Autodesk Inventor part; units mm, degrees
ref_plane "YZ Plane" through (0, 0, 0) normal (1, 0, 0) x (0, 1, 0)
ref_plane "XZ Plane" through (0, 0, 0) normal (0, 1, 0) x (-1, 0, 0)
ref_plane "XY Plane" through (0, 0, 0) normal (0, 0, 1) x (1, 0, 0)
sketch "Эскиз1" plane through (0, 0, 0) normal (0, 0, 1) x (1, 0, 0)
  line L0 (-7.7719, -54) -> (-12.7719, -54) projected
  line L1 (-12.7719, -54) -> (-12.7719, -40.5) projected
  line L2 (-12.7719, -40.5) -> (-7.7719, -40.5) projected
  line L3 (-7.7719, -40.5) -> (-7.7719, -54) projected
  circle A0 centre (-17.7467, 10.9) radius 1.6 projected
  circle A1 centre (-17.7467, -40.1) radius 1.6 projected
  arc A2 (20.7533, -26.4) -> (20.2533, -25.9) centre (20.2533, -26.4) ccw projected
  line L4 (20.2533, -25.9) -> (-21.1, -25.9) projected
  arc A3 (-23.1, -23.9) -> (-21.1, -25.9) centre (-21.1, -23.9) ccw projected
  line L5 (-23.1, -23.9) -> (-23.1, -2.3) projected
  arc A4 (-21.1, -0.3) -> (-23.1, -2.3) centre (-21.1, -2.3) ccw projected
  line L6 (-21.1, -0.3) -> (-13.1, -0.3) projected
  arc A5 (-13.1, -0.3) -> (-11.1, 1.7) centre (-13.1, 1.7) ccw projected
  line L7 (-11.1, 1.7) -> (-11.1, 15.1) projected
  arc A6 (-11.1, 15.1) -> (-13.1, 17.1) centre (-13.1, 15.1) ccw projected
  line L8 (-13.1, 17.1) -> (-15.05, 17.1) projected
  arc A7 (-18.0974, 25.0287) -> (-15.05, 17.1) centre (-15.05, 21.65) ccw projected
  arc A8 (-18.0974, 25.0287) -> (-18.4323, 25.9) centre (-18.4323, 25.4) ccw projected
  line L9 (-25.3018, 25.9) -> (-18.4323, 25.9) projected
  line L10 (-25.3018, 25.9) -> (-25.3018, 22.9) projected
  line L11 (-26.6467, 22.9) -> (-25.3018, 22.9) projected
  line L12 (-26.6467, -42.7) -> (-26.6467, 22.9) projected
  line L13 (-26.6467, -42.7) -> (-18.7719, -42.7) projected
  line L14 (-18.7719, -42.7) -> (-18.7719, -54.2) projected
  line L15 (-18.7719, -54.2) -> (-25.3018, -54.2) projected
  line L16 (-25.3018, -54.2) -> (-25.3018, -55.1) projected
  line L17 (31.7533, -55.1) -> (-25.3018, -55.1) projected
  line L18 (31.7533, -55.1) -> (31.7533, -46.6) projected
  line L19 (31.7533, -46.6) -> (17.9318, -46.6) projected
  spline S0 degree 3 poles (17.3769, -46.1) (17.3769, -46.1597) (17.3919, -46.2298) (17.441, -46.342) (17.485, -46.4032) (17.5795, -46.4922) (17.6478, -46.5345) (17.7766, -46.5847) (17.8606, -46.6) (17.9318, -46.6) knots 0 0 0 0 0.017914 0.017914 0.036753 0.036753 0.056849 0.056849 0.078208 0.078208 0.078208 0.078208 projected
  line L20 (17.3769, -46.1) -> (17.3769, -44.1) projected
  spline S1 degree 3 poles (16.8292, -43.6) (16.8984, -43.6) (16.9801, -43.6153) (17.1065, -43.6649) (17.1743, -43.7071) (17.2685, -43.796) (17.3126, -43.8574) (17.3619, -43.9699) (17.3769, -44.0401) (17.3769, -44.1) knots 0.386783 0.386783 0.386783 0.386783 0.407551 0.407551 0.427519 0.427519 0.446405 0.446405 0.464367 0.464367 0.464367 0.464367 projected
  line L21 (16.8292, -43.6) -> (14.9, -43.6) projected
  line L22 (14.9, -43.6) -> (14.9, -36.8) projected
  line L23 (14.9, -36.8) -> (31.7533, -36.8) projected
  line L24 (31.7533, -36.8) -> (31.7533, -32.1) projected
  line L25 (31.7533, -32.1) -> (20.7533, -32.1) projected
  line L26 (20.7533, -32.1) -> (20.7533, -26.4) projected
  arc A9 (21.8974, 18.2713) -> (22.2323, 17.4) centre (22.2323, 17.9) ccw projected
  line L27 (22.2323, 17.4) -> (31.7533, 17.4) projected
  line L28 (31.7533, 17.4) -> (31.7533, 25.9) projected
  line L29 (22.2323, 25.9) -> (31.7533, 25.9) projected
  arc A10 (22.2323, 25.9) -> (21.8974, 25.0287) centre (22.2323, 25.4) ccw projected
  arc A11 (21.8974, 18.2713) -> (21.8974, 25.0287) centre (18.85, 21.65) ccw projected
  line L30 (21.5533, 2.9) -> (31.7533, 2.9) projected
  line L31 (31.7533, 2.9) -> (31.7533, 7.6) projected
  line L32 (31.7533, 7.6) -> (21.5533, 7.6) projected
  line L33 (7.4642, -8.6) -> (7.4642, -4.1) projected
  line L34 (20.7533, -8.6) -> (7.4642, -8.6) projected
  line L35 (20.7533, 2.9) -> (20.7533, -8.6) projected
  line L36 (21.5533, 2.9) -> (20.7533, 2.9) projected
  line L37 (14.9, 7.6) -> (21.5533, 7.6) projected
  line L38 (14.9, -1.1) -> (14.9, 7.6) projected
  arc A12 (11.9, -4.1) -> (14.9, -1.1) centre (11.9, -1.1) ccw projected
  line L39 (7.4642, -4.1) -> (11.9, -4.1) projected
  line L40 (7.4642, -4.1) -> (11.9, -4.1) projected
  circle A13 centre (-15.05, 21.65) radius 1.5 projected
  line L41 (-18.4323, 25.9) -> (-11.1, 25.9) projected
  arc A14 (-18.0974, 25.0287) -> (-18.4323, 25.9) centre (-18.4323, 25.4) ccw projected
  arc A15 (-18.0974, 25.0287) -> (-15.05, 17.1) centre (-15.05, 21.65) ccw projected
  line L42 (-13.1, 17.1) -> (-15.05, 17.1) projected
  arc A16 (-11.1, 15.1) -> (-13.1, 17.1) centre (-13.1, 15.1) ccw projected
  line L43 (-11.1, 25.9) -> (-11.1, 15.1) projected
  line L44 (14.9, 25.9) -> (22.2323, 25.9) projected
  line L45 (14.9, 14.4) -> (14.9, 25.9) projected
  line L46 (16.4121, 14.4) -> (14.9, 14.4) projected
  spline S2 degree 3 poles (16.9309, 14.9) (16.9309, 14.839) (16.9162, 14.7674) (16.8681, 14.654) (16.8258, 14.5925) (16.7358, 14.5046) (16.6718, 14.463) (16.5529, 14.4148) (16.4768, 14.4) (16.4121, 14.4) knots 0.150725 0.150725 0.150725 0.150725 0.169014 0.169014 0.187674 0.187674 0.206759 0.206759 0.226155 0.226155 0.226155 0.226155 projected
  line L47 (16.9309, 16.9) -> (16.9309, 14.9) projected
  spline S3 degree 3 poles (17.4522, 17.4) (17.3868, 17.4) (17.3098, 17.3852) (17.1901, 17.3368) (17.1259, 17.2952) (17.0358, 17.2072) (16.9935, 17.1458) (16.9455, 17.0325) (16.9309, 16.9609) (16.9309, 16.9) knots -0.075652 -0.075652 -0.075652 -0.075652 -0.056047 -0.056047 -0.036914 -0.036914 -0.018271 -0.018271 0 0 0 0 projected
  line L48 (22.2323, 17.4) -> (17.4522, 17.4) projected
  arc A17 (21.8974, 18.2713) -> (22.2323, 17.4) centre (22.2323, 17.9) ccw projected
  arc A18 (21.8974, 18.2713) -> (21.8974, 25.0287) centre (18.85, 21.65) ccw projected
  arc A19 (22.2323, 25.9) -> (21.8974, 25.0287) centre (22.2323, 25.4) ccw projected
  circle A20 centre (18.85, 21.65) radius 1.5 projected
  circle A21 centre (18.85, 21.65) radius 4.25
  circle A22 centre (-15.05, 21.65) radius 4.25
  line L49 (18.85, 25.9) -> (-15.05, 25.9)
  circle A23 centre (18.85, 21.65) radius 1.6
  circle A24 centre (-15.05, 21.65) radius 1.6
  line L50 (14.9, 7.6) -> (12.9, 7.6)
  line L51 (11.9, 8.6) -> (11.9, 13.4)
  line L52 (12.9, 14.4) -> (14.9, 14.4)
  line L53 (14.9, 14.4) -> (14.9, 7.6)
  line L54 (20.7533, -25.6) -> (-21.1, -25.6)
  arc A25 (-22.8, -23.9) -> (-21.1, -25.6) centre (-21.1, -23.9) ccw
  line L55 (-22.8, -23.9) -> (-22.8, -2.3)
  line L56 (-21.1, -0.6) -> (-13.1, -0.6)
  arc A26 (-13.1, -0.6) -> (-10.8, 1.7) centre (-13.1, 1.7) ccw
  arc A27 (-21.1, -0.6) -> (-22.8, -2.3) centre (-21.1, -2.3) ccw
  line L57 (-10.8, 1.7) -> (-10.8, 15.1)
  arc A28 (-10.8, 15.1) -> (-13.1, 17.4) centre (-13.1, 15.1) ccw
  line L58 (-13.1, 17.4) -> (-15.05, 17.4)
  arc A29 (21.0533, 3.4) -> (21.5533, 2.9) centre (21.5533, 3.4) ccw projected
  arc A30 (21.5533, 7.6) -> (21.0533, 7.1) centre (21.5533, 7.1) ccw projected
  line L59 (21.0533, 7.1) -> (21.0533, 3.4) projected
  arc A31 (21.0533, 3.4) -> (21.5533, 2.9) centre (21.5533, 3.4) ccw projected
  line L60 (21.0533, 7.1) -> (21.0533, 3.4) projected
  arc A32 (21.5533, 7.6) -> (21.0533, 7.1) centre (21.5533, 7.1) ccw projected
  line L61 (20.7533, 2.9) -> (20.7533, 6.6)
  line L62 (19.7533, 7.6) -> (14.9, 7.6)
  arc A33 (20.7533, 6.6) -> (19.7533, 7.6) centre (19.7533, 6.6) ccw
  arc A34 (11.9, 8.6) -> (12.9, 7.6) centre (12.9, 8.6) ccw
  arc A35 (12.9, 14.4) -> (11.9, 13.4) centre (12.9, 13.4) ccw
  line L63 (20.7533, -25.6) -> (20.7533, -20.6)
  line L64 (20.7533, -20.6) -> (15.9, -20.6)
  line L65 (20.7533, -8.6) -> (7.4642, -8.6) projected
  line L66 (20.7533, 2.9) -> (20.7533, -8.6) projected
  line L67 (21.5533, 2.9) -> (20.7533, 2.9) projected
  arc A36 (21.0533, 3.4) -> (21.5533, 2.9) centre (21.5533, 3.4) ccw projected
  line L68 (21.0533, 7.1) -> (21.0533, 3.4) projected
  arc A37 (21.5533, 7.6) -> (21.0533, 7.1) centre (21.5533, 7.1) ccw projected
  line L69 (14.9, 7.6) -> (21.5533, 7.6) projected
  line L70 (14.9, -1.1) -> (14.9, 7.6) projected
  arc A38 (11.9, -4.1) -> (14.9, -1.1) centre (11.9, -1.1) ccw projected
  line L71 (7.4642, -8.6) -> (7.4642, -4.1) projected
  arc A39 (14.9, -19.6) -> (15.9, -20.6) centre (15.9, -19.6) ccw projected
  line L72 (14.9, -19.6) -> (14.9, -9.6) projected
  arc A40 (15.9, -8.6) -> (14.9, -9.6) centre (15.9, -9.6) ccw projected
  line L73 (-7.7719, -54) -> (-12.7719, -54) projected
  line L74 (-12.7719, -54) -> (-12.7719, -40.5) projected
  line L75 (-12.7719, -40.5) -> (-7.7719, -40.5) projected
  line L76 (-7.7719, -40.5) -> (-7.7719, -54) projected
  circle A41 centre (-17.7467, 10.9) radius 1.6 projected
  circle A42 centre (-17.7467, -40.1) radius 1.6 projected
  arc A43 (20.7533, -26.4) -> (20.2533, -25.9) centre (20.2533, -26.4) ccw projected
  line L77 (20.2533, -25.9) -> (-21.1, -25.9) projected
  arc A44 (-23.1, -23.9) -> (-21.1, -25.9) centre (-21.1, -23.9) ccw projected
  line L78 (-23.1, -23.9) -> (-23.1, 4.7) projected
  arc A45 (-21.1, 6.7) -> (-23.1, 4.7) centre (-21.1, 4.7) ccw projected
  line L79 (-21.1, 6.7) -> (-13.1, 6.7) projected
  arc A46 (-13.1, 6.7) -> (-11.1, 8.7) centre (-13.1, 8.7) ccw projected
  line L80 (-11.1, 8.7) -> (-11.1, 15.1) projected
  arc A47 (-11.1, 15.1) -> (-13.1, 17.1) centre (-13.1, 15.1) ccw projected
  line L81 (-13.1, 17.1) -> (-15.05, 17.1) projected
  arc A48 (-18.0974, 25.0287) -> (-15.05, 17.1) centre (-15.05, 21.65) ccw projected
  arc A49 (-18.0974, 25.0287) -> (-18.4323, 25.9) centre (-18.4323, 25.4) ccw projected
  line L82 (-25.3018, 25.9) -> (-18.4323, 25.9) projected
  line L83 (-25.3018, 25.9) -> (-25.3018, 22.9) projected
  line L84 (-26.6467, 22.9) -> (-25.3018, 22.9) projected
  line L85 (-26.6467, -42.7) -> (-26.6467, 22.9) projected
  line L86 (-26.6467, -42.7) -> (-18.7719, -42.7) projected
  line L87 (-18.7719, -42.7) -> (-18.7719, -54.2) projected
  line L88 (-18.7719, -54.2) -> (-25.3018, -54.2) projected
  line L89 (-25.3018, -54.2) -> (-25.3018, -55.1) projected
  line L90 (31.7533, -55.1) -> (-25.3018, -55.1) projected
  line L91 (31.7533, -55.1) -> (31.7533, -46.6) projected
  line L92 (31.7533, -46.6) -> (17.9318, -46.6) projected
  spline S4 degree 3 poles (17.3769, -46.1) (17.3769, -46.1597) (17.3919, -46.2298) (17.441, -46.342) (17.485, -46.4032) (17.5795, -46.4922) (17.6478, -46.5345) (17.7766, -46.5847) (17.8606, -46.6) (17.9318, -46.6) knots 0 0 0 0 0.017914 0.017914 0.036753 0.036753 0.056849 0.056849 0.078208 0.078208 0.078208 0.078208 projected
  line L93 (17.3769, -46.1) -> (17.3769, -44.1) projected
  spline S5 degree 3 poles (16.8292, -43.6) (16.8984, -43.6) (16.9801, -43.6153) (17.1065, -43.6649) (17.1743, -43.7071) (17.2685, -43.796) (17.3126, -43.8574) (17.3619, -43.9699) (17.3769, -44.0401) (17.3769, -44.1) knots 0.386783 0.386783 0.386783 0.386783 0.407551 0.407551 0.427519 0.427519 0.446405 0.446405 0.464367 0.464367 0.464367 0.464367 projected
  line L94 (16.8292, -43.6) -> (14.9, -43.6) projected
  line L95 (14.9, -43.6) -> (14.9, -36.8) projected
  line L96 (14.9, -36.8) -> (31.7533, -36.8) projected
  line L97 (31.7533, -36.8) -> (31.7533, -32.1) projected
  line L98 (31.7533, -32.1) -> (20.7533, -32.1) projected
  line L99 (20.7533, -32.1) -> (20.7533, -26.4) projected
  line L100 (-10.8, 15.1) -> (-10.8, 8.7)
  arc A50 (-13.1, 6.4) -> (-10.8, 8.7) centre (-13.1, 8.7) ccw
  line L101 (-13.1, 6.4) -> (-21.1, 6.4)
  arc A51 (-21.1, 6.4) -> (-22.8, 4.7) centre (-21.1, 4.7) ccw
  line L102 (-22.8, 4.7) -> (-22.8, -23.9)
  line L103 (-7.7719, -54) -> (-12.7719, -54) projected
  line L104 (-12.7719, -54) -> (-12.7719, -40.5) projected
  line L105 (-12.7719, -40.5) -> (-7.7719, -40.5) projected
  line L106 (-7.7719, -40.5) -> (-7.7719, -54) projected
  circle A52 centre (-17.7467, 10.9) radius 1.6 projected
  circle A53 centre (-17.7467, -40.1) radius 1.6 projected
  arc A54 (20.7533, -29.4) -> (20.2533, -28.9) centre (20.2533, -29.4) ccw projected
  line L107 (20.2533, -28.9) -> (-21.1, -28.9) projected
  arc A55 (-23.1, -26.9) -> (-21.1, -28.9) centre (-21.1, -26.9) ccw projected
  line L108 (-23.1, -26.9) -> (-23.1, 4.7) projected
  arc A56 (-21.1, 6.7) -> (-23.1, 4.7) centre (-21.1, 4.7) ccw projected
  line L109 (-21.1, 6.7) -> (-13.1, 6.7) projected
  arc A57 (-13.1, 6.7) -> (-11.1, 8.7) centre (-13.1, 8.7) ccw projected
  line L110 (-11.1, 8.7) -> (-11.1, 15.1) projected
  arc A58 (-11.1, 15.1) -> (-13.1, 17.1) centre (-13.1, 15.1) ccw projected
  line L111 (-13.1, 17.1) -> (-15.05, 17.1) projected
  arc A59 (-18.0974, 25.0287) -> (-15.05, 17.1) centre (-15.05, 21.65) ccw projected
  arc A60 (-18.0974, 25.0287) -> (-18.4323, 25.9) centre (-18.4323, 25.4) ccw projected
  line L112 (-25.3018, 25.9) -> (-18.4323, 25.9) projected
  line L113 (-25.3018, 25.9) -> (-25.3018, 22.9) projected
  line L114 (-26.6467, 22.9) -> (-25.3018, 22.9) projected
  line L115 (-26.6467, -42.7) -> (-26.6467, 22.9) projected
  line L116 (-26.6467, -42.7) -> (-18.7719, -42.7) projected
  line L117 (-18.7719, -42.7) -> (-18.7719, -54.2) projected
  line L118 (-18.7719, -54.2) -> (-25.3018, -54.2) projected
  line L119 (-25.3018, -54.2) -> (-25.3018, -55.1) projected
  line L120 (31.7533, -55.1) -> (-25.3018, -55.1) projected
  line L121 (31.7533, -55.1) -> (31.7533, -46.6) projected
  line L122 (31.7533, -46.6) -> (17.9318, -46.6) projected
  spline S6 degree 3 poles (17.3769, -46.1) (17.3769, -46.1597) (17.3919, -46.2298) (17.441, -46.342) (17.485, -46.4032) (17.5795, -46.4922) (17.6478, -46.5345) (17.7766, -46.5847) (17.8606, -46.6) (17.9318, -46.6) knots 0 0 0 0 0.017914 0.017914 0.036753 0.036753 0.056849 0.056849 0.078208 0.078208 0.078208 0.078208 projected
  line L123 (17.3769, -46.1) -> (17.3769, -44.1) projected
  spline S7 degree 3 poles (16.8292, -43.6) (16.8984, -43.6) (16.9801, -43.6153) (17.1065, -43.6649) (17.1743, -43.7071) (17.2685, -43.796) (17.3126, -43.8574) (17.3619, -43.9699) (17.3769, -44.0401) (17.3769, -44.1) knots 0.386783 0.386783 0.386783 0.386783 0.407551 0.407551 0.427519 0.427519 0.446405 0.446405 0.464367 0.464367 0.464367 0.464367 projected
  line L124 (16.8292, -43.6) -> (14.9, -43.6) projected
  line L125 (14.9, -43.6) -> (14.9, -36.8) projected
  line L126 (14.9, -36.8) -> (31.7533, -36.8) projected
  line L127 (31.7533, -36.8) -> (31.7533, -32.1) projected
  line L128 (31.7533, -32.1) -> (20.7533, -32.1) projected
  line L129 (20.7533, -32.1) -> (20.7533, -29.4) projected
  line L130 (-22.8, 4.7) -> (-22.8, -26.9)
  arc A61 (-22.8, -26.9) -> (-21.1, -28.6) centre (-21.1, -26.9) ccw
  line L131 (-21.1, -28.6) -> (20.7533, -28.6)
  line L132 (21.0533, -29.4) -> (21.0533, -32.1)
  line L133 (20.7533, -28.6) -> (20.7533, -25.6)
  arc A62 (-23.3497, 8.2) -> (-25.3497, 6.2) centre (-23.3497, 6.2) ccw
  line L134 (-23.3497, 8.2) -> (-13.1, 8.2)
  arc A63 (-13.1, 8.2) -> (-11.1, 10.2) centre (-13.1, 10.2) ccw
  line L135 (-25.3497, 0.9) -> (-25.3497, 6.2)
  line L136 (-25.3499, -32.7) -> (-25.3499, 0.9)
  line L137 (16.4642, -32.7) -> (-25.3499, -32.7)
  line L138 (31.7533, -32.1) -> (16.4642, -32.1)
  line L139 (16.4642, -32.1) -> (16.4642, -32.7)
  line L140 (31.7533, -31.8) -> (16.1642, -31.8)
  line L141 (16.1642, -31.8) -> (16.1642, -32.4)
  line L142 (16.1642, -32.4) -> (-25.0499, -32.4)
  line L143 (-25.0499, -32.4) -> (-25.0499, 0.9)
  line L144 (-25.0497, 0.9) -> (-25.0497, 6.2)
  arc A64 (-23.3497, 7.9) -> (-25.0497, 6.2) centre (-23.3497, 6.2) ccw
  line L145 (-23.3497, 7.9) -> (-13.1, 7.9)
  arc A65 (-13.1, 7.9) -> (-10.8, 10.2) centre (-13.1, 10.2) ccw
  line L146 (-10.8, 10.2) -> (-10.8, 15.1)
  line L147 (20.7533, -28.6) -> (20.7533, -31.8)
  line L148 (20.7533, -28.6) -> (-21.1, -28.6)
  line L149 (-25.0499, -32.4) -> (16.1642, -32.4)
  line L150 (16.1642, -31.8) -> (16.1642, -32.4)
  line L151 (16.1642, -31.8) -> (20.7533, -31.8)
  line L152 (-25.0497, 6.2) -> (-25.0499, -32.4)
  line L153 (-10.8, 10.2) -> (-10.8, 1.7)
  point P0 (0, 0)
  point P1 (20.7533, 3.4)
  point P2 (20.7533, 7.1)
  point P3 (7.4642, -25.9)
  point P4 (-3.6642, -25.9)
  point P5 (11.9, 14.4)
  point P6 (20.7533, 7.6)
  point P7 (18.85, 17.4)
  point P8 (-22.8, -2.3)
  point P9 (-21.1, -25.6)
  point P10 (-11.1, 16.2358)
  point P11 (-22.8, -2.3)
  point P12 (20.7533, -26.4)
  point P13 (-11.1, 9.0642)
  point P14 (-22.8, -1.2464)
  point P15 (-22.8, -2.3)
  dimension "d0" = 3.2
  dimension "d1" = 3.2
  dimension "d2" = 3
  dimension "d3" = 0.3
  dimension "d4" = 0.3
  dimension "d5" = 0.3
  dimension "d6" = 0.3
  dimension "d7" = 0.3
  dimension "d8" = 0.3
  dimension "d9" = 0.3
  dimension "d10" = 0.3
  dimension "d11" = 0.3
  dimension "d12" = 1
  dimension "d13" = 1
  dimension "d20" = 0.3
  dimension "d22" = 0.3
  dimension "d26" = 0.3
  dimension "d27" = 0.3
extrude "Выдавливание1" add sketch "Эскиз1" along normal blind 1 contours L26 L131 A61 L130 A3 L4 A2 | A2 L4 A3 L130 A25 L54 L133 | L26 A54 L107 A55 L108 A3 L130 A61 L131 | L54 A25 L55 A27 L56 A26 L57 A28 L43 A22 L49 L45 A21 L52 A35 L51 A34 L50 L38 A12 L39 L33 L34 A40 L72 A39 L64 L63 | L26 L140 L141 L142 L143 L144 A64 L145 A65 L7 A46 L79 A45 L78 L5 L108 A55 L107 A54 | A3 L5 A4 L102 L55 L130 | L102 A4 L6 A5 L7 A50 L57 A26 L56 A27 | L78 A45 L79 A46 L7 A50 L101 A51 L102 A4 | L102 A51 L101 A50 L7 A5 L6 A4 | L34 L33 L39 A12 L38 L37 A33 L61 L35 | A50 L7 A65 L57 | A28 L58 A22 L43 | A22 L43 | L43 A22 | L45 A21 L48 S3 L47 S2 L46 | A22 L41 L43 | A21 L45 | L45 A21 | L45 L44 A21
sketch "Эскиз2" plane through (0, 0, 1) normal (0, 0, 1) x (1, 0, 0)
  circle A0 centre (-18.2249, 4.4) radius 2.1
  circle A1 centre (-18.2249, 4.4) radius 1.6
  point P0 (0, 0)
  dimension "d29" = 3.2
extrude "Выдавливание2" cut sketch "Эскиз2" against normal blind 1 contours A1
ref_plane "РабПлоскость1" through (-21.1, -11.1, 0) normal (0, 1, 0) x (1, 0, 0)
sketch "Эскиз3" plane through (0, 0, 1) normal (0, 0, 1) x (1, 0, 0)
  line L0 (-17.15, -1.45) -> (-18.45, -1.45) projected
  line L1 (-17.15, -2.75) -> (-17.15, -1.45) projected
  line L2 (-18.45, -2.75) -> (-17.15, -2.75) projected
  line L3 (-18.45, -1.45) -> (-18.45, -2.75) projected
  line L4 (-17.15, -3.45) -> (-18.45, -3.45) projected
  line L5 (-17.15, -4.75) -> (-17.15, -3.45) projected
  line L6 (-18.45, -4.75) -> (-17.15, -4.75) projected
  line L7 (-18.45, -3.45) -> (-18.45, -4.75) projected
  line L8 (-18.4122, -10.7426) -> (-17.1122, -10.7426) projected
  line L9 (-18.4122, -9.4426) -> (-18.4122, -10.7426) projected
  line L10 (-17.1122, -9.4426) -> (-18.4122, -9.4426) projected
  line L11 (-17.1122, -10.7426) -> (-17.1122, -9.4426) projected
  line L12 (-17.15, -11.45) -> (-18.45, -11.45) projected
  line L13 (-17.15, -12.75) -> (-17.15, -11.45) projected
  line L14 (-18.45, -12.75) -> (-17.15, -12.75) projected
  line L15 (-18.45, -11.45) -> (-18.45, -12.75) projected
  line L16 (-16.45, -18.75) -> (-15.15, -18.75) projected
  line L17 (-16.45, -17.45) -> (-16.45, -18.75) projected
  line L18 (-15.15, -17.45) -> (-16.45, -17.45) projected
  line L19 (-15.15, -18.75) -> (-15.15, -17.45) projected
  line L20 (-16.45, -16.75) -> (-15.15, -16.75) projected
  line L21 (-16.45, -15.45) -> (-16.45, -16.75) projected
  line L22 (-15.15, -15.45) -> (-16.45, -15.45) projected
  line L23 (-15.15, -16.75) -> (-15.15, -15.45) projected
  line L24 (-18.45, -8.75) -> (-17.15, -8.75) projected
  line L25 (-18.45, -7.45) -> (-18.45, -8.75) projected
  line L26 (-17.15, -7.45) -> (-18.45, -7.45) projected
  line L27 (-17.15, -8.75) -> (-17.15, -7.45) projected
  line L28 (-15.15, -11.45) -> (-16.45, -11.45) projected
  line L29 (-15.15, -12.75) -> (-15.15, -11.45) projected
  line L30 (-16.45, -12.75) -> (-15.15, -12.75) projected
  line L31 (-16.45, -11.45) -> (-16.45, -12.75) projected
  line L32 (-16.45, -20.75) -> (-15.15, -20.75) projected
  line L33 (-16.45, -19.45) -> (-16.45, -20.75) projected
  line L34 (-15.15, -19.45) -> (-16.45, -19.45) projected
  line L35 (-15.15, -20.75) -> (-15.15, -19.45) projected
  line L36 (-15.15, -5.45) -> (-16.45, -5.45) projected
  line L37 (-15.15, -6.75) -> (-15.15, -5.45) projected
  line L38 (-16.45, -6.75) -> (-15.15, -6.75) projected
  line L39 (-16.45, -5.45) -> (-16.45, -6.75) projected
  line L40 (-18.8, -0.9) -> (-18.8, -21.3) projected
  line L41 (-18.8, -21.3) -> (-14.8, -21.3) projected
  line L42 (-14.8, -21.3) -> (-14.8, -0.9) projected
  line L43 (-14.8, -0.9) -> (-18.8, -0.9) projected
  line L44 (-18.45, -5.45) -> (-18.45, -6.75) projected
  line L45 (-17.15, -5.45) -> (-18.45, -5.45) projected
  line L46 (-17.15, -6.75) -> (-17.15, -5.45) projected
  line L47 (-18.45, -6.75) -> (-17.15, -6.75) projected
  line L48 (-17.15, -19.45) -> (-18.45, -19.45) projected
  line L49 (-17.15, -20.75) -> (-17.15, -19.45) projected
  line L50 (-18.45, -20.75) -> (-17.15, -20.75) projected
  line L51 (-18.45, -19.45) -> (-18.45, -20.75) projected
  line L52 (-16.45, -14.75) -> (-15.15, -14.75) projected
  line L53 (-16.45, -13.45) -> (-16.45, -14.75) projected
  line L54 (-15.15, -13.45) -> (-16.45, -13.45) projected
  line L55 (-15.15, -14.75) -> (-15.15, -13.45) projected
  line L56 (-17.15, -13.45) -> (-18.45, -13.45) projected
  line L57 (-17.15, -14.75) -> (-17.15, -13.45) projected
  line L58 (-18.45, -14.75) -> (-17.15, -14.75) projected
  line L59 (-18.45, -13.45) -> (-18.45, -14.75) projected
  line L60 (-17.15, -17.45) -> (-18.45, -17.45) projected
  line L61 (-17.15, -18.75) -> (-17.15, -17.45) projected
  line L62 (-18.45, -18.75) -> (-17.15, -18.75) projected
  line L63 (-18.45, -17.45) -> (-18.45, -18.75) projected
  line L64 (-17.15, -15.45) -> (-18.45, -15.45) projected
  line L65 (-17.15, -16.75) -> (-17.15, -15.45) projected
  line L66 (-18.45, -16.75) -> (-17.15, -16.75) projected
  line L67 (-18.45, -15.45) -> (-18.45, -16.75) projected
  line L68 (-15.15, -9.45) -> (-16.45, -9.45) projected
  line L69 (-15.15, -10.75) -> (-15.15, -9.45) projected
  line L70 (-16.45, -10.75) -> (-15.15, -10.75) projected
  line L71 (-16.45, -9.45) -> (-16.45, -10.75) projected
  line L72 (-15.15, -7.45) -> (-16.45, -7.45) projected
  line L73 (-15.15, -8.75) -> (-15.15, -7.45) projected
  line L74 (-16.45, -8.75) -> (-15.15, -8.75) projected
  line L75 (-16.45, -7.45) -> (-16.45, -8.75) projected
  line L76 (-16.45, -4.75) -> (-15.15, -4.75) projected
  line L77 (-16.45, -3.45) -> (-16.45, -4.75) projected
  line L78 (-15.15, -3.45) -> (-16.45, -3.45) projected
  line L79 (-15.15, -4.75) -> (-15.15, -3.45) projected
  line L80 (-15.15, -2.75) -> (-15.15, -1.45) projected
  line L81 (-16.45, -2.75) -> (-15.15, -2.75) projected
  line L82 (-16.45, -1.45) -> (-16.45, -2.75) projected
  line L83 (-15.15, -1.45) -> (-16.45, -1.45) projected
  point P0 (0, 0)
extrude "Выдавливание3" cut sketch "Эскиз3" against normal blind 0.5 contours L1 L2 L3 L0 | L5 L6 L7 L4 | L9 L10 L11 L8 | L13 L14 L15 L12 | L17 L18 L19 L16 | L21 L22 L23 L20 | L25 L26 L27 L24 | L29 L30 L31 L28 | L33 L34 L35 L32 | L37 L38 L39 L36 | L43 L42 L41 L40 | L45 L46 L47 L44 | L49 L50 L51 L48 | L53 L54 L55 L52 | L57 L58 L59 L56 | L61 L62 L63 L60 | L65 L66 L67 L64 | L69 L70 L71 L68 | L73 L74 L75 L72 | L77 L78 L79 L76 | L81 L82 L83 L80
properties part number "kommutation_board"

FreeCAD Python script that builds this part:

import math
import FreeCAD as App
import Part
import Sketcher

V = App.Vector


def add_polygon(sketch, points):
    """Adds a closed chain of lines whose ends are joined by coincident constraints."""
    first, n = sketch.GeometryCount, len(points)
    for a, b in zip(points, points[1:] + points[:1]):
        sketch.addGeometry(Part.LineSegment(App.Vector(*a, 0), App.Vector(*b, 0)), False)
    for i in range(n):
        sketch.addConstraint(Sketcher.Constraint("Coincident", first + i, 2, first + (i + 1) % n, 1))

doc = App.newDocument("Part")
body = doc.addObject("PartDesign::Body", "Body")

sketch1 = doc.addObject("Sketcher::SketchObject", "Sketch")
body.addObject(sketch1)
sketch1.AttachmentSupport = (doc.XY_Plane, [""])
sketch1.MapMode = "FlatFace"
sketch1.addGeometry(Part.LineSegment(V(20.7533, -20.6, 0), V(15.9, -20.6, 0)), False)
sketch1.addGeometry(Part.ArcOfCircle(Part.Circle(V(15.9, -19.6, 0), V(0, 0, 1), 1), math.radians(180), math.radians(270)), False)
sketch1.addGeometry(Part.LineSegment(V(14.9, -19.6, 0), V(14.9, -9.6, 0)), False)
sketch1.addGeometry(Part.ArcOfCircle(Part.Circle(V(15.9, -9.6, 0), V(0, 0, 1), 1), math.radians(90), math.radians(180)), False)
sketch1.addGeometry(Part.LineSegment(V(15.9, -8.6, 0), V(20.7533, -8.6, 0)), False)
sketch1.addGeometry(Part.LineSegment(V(20.7533, -8.6, 0), V(20.7533, 6.6, 0)), False)
sketch1.addGeometry(Part.ArcOfCircle(Part.Circle(V(19.7533, 6.6, 0), V(0, 0, 1), 1), math.radians(0), math.radians(90)), False)
sketch1.addGeometry(Part.LineSegment(V(19.7533, 7.6, 0), V(12.9, 7.6, 0)), False)
sketch1.addGeometry(Part.ArcOfCircle(Part.Circle(V(12.9, 8.6, 0), V(0, 0, 1), 1), math.radians(180), math.radians(270)), False)
sketch1.addGeometry(Part.LineSegment(V(11.9, 8.6, 0), V(11.9, 13.4, 0)), False)
sketch1.addGeometry(Part.ArcOfCircle(Part.Circle(V(12.9, 13.4, 0), V(0, 0, 1), 1), math.radians(90), math.radians(180)), False)
sketch1.addGeometry(Part.LineSegment(V(12.9, 14.4, 0), V(16.4121, 14.4, 0)), False)
sketch1.addGeometry(Part.BSplineCurve([V(16.9309, 14.9, 0), V(16.9309, 14.839, 0), V(16.9162, 14.7674, 0), V(16.8681, 14.654, 0), V(16.8258, 14.5925, 0), V(16.7358, 14.5046, 0), V(16.6718, 14.463, 0), V(16.5529, 14.4148, 0), V(16.4768, 14.4, 0), V(16.4121, 14.4, 0)], [4, 2, 2, 2, 4], [0.150725, 0.169014, 0.187674, 0.206759, 0.226155], False, 3, [1, 1, 1, 1, 1, 1, 1, 1, 1, 1], False), False)
sketch1.addGeometry(Part.LineSegment(V(16.9309, 14.9, 0), V(16.9309, 16.9, 0)), False)
sketch1.addGeometry(Part.BSplineCurve([V(17.4522, 17.4, 0), V(17.3868, 17.4, 0), V(17.3098, 17.3852, 0), V(17.1901, 17.3368, 0), V(17.1259, 17.2952, 0), V(17.0358, 17.2072, 0), V(16.9935, 17.1458, 0), V(16.9455, 17.0325, 0), V(16.9309, 16.9609, 0), V(16.9309, 16.9, 0)], [4, 2, 2, 2, 4], [-0.075652, -0.056047, -0.036914, -0.018271, 0], False, 3, [1, 1, 1, 1, 1, 1, 1, 1, 1, 1], False), False)
sketch1.addGeometry(Part.LineSegment(V(17.4522, 17.4, 0), V(18.85, 17.4, 0)), False)
sketch1.addGeometry(Part.ArcOfCircle(Part.Circle(V(18.85, 21.65, 0), V(0, 0, 1), 4.25), math.radians(-90), math.radians(90)), False)
sketch1.addGeometry(Part.LineSegment(V(18.85, 25.9, 0), V(-15.05, 25.9, 0)), False)
sketch1.addGeometry(Part.ArcOfCircle(Part.Circle(V(-15.05, 21.65, 0), V(0, 0, 1), 4.25), math.radians(90), math.radians(270)), False)
sketch1.addGeometry(Part.LineSegment(V(-15.05, 17.4, 0), V(-13.1, 17.4, 0)), False)
sketch1.addGeometry(Part.ArcOfCircle(Part.Circle(V(-13.1, 15.1, 0), V(0, 0, 1), 2.3), math.radians(0), math.radians(90)), False)
sketch1.addGeometry(Part.LineSegment(V(-10.8, 15.1, 0), V(-10.8, 10.2, 0)), False)
sketch1.addGeometry(Part.ArcOfCircle(Part.Circle(V(-13.1, 10.2, 0), V(0, 0, 1), 2.3), math.radians(-90), math.radians(0)), False)
sketch1.addGeometry(Part.LineSegment(V(-13.1, 7.9, 0), V(-23.3497, 7.9, 0)), False)
sketch1.addGeometry(Part.ArcOfCircle(Part.Circle(V(-23.3497, 6.2, 0), V(0, 0, 1), 1.7), math.radians(90), math.radians(180)), False)
sketch1.addGeometry(Part.LineSegment(V(-25.0497, 6.2, 0), V(-25.0499, 0.9, 0)), False)
sketch1.addGeometry(Part.LineSegment(V(-25.0499, 0.9, 0), V(-25.0499, -32.4, 0)), False)
sketch1.addGeometry(Part.LineSegment(V(-25.0499, -32.4, 0), V(16.1642, -32.4, 0)), False)
sketch1.addGeometry(Part.LineSegment(V(16.1642, -32.4, 0), V(16.1642, -31.8, 0)), False)
sketch1.addGeometry(Part.LineSegment(V(16.1642, -31.8, 0), V(20.7533, -31.8, 0)), False)
sketch1.addGeometry(Part.LineSegment(V(20.7533, -31.8, 0), V(20.7533, -20.6, 0)), False)
sketch1.addGeometry(Part.Circle(V(-15.05, 21.65, 0), V(0, 0, 1), 1.6), False)
sketch1.addGeometry(Part.Circle(V(18.85, 21.65, 0), V(0, 0, 1), 1.6), False)
sketch1.addConstraint(Sketcher.Constraint("Block", 12))
sketch1.addConstraint(Sketcher.Constraint("Block", 14))
sketch1.addConstraint(Sketcher.Constraint("Tangent", 0, 2, 1, 2))
sketch1.addConstraint(Sketcher.Constraint("Tangent", 1, 1, 2, 1))
sketch1.addConstraint(Sketcher.Constraint("Tangent", 2, 2, 3, 2))
sketch1.addConstraint(Sketcher.Constraint("Tangent", 3, 1, 4, 1))
sketch1.addConstraint(Sketcher.Constraint("Coincident", 4, 2, 5, 1))
sketch1.addConstraint(Sketcher.Constraint("Tangent", 5, 2, 6, 1))
sketch1.addConstraint(Sketcher.Constraint("Tangent", 6, 2, 7, 1))
sketch1.addConstraint(Sketcher.Constraint("Tangent", 7, 2, 8, 2))
sketch1.addConstraint(Sketcher.Constraint("Tangent", 8, 1, 9, 1))
sketch1.addConstraint(Sketcher.Constraint("Tangent", 9, 2, 10, 2))
sketch1.addConstraint(Sketcher.Constraint("Tangent", 10, 1, 11, 1))
sketch1.addConstraint(Sketcher.Constraint("Coincident", 11, 2, 12, 2))
sketch1.addConstraint(Sketcher.Constraint("Coincident", 12, 1, 13, 1))
sketch1.addConstraint(Sketcher.Constraint("Coincident", 13, 2, 14, 2))
sketch1.addConstraint(Sketcher.Constraint("Coincident", 14, 1, 15, 1))
sketch1.addConstraint(Sketcher.Constraint("Tangent", 15, 2, 16, 1))
sketch1.addConstraint(Sketcher.Constraint("Tangent", 16, 2, 17, 1))
sketch1.addConstraint(Sketcher.Constraint("Tangent", 17, 2, 18, 1))
sketch1.addConstraint(Sketcher.Constraint("Tangent", 18, 2, 19, 1))
sketch1.addConstraint(Sketcher.Constraint("Tangent", 19, 2, 20, 2))
sketch1.addConstraint(Sketcher.Constraint("Tangent", 20, 1, 21, 1))
sketch1.addConstraint(Sketcher.Constraint("Tangent", 21, 2, 22, 2))
sketch1.addConstraint(Sketcher.Constraint("Tangent", 22, 1, 23, 1))
sketch1.addConstraint(Sketcher.Constraint("Tangent", 23, 2, 24, 1))
sketch1.addConstraint(Sketcher.Constraint("Tangent", 24, 2, 25, 1))
sketch1.addConstraint(Sketcher.Constraint("Coincident", 25, 2, 26, 1))
sketch1.addConstraint(Sketcher.Constraint("Coincident", 26, 2, 27, 1))
sketch1.addConstraint(Sketcher.Constraint("Coincident", 27, 2, 28, 1))
sketch1.addConstraint(Sketcher.Constraint("Coincident", 28, 2, 29, 1))
sketch1.addConstraint(Sketcher.Constraint("Coincident", 29, 2, 30, 1))
sketch1.addConstraint(Sketcher.Constraint("Coincident", 30, 2, 0, 1))
sketch1.addConstraint(Sketcher.Constraint("Horizontal", 0))
sketch1.addConstraint(Sketcher.Constraint("Vertical", 2))
sketch1.addConstraint(Sketcher.Constraint("Horizontal", 4))
sketch1.addConstraint(Sketcher.Constraint("Vertical", 5))
sketch1.addConstraint(Sketcher.Constraint("Horizontal", 7))
sketch1.addConstraint(Sketcher.Constraint("Vertical", 9))
sketch1.addConstraint(Sketcher.Constraint("Horizontal", 11))
sketch1.addConstraint(Sketcher.Constraint("Horizontal", 15))
sketch1.addConstraint(Sketcher.Constraint("Horizontal", 17))
sketch1.addConstraint(Sketcher.Constraint("Horizontal", 19))
sketch1.addConstraint(Sketcher.Constraint("Vertical", 21))
sketch1.addConstraint(Sketcher.Constraint("Horizontal", 23))
sketch1.addConstraint(Sketcher.Constraint("Vertical", 25))
sketch1.addConstraint(Sketcher.Constraint("Vertical", 26))
sketch1.addConstraint(Sketcher.Constraint("Horizontal", 27))
sketch1.addConstraint(Sketcher.Constraint("Vertical", 28))
sketch1.addConstraint(Sketcher.Constraint("Horizontal", 29))
sketch1.addConstraint(Sketcher.Constraint("Vertical", 30))
sketch1.addConstraint(Sketcher.Constraint("Coincident", 31, 3, 18, 3))
sketch1.addConstraint(Sketcher.Constraint("Coincident", 32, 3, 16, 3))
sketch1.addConstraint(Sketcher.Constraint("Equal", 1, 3))
sketch1.addConstraint(Sketcher.Constraint("Equal", 3, 6))
sketch1.addConstraint(Sketcher.Constraint("Equal", 6, 8))
sketch1.addConstraint(Sketcher.Constraint("Equal", 8, 10))
sketch1.addConstraint(Sketcher.Constraint("Equal", 16, 18))
sketch1.addConstraint(Sketcher.Constraint("Equal", 20, 22))
sketch1.addConstraint(Sketcher.Constraint("Equal", 31, 32))
sketch1.addConstraint(Sketcher.Constraint("Vertical", 5, 2, 29, 2))
sketch1.addConstraint(Sketcher.Constraint("Radius", 1, 1.0))
sketch1.addConstraint(Sketcher.Constraint("Diameter", 31, 3.2))
sketch1.addConstraint(Sketcher.Constraint("DistanceX", 8, 3, 3, 3, 3.0))
sketch1.addConstraint(Sketcher.Constraint("Radius", 20, 2.3))
sketch1.addConstraint(Sketcher.Constraint("Radius", 24, 1.7))
sketch1.addConstraint(Sketcher.Constraint("DistanceY", 22, 3, 10, 3, 3.2))
sketch1.addConstraint(Sketcher.Constraint("DistanceY", 2, 1, 2, 2, 10.0))
sketch1.addConstraint(Sketcher.Constraint("Radius", 16, 4.25))
sketch1.addConstraint(Sketcher.Constraint("DistanceX", 17, 2, 17, 1, 33.9))
sketch1.addConstraint(Sketcher.Constraint("DistanceY", 5, 1, 5, 2, 15.2))
sketch1.addConstraint(Sketcher.Constraint("DistanceY", 9, 1, 9, 2, 4.8))
sketch1.addConstraint(Sketcher.Constraint("DistanceY", 25, 2, 25, 1, 5.3))
sketch1.addConstraint(Sketcher.Constraint("DistanceY", 26, 2, 26, 1, 33.3))
sketch1.addConstraint(Sketcher.Constraint("DistanceY", 28, 1, 28, 2, 0.6))
sketch1.addConstraint(Sketcher.Constraint("DistanceX", 20, 3, 10, 3, 26.0))
sketch1.addConstraint(Sketcher.Constraint("DistanceX", 19, 1, 19, 2, 1.95))
sketch1.addConstraint(Sketcher.Constraint("DistanceX", -1, 1, 1, 3, 15.9))
sketch1.addConstraint(Sketcher.Constraint("DistanceX", 27, 1, 27, 2, 41.214))
sketch1.addConstraint(Sketcher.Constraint("DistanceX", 29, 1, 29, 2, 4.589))
sketch1.addConstraint(Sketcher.Constraint("DistanceX", 25, 2, -1, 1, 25.05))
pad1 = doc.addObject("PartDesign::Pad", "Pad")
body.addObject(pad1)
pad1.Profile = sketch1
pad1.Length = 1

sketch2 = doc.addObject("Sketcher::SketchObject", "Sketch001")
body.addObject(sketch2)
sketch2.AttachmentSupport = (doc.XY_Plane, [""])
sketch2.MapMode = "FlatFace"
sketch2.AttachmentOffset = App.Placement(V(0, 0, 1), App.Rotation())
sketch2.addGeometry(Part.Circle(V(-18.2249, 4.4, 0), V(0, 0, 1), 1.6), False)
sketch2.addConstraint(Sketcher.Constraint("Diameter", 0, 3.2))
sketch2.addConstraint(Sketcher.Constraint("DistanceY", -1, 1, 0, 3, 4.4))
sketch2.addConstraint(Sketcher.Constraint("DistanceX", 0, 3, -1, 1, 18.225))
pocket1 = doc.addObject("PartDesign::Pocket", "Pocket")
body.addObject(pocket1)
pocket1.Profile = sketch2
pocket1.Length = 1

sketch3 = doc.addObject("Sketcher::SketchObject", "Sketch002")
body.addObject(sketch3)
sketch3.AttachmentSupport = (doc.XY_Plane, [""])
sketch3.MapMode = "FlatFace"
sketch3.AttachmentOffset = App.Placement(V(0, 0, 1), App.Rotation())
add_polygon(sketch3, [(-14.8, -0.9), (-18.8, -0.9), (-18.8, -21.3), (-14.8, -21.3)])
sketch3.addConstraint(Sketcher.Constraint("Horizontal", 0))
sketch3.addConstraint(Sketcher.Constraint("Vertical", 1))
sketch3.addConstraint(Sketcher.Constraint("Horizontal", 2))
sketch3.addConstraint(Sketcher.Constraint("Vertical", 3))
sketch3.addConstraint(Sketcher.Constraint("DistanceX", 0, 2, 0, 1, 4.0))
sketch3.addConstraint(Sketcher.Constraint("DistanceY", 1, 2, 1, 1, 20.4))
sketch3.addConstraint(Sketcher.Constraint("DistanceX", 0, 2, -1, 1, 18.8))
sketch3.addConstraint(Sketcher.Constraint("DistanceY", 0, 2, -1, 1, 0.9))
pocket2 = doc.addObject("PartDesign::Pocket", "Pocket001")
body.addObject(pocket2)
pocket2.Profile = sketch3
pocket2.Length = 0.5

doc.recompute()
